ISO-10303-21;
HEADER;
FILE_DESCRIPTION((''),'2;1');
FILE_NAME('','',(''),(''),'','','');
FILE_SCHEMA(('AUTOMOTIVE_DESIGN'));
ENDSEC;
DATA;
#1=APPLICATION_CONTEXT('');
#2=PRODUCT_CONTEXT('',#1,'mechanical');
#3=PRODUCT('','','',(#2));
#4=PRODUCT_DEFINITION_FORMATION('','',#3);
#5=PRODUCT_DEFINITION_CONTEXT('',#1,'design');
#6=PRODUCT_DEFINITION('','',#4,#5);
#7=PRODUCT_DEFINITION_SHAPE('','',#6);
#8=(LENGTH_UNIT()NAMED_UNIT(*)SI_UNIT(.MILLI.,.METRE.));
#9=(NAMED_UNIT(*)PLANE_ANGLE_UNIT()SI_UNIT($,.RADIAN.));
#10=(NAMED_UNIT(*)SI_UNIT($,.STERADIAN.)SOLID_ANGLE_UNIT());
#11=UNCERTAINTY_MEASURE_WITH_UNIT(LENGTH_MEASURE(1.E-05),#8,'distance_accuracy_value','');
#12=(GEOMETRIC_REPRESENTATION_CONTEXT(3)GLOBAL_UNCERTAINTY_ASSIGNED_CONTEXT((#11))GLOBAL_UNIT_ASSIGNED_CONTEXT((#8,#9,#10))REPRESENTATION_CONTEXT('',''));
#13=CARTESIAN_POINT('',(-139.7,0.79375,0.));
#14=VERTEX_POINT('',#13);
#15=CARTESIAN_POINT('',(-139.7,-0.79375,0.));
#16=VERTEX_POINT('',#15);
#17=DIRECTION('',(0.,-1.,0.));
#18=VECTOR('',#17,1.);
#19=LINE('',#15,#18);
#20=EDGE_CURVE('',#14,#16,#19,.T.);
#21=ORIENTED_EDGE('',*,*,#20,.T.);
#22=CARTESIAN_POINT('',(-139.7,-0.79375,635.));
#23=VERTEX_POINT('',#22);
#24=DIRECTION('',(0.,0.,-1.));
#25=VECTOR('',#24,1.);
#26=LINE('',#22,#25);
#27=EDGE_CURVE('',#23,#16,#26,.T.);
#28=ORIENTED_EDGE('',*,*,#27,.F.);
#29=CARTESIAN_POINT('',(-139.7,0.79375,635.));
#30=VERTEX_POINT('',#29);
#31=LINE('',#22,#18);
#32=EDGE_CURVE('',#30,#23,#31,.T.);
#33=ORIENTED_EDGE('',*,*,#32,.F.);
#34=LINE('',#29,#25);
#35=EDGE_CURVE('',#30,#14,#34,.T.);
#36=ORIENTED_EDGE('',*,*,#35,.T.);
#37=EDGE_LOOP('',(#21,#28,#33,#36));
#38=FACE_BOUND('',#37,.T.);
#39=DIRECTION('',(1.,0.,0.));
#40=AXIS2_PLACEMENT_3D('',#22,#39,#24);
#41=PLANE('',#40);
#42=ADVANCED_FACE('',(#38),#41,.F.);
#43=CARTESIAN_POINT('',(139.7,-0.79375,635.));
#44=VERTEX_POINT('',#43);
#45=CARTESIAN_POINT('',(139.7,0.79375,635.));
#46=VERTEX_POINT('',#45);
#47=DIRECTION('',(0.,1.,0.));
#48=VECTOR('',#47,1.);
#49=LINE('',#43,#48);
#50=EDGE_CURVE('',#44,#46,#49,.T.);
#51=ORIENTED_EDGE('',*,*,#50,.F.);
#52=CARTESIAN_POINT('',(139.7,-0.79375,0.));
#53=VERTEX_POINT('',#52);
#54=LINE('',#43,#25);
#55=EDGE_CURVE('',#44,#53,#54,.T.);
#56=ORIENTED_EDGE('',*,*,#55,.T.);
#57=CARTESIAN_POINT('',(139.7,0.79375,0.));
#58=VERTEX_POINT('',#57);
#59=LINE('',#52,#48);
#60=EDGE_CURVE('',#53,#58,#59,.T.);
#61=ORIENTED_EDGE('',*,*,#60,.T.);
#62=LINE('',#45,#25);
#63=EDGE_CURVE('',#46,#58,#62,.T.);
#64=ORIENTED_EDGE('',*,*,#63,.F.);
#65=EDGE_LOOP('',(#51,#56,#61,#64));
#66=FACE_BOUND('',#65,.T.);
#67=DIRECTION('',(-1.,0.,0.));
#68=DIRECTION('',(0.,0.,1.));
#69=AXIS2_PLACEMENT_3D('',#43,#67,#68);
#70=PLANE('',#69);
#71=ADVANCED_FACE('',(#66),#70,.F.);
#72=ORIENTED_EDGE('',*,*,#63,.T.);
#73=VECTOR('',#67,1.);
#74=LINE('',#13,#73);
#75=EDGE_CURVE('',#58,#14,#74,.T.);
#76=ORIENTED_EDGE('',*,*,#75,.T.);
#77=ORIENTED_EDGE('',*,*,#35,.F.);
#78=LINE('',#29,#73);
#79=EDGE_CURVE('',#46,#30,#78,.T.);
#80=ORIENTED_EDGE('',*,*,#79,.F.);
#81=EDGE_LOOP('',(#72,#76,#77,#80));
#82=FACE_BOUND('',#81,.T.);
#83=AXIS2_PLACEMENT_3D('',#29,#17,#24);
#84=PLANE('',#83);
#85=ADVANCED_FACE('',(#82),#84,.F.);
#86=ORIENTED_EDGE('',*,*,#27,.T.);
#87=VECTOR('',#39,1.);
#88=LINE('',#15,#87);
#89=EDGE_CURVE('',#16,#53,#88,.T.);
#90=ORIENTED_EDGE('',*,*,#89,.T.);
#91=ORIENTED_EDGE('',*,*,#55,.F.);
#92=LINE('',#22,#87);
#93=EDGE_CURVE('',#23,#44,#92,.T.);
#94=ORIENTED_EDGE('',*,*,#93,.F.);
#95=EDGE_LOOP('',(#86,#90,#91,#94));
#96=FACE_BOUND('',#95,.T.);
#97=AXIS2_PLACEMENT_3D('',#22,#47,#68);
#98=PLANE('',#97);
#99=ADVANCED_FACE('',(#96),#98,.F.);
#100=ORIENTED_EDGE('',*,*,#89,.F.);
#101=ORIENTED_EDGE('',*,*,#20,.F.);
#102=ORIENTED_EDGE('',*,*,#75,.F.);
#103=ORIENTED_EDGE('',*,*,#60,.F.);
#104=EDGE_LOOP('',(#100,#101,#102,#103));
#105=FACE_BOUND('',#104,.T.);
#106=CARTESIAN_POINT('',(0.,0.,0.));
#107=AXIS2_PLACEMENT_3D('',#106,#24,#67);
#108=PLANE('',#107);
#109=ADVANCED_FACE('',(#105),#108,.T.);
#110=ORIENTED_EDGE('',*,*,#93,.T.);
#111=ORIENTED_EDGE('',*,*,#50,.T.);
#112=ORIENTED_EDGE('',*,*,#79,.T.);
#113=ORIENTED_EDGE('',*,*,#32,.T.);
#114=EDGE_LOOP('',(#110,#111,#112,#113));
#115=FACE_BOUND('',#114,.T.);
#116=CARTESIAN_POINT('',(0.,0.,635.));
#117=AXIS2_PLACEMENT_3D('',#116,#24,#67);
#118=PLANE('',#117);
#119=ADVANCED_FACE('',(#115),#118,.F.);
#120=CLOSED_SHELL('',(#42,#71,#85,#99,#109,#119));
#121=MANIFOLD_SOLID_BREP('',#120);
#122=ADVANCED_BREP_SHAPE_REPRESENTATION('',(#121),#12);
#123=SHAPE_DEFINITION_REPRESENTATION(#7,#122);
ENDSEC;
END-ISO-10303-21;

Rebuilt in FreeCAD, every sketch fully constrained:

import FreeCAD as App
import Part
import Sketcher

V = App.Vector
Q = App.Units.Quantity

doc = App.newDocument("Part")
params = doc.addObject("Spreadsheet::Sheet", "Params")
for row, (alias, value) in enumerate([
    ("sketch1_width", "11 in"),
    ("sketch1_height", "0.0625 in"),
    ("pad1_length", "25 in"),
], start=1):
    params.set(f"A{row}", alias)
    params.set(f"B{row}", "=" + value)
    params.setAlias(f"B{row}", alias)

body = doc.addObject("PartDesign::Body", "Body")

sketch1 = body.newObject("Sketcher::SketchObject", "Sketch")
sketch1.AttachmentSupport = (doc.getObject("XY_Plane"), [""])
sketch1.MapMode = "FlatFace"
sketch1.addGeometry(Part.LineSegment(V(-139.7, 0.8, 0), V(-139.7, -0.8, 0)), False)
sketch1.addGeometry(Part.LineSegment(V(-139.7, -0.8, 0), V(139.7, -0.8, 0)), False)
sketch1.addGeometry(Part.LineSegment(V(139.7, -0.8, 0), V(139.7, 0.8, 0)), False)
sketch1.addGeometry(Part.LineSegment(V(139.7, 0.8, 0), V(-139.7, 0.8, 0)), False)
sketch1.addConstraint(Sketcher.Constraint("Coincident", 0, 2, 1, 1))
sketch1.addConstraint(Sketcher.Constraint("Coincident", 1, 2, 2, 1))
sketch1.addConstraint(Sketcher.Constraint("Coincident", 2, 2, 3, 1))
sketch1.addConstraint(Sketcher.Constraint("Coincident", 3, 2, 0, 1))
sketch1.addConstraint(Sketcher.Constraint("Vertical", 0))
sketch1.addConstraint(Sketcher.Constraint("Horizontal", 1))
sketch1.addConstraint(Sketcher.Constraint("Vertical", 2))
sketch1.addConstraint(Sketcher.Constraint("Horizontal", 3))
sketch1.addConstraint(Sketcher.Constraint("Symmetric", 0, 2, 2, 2, -1, 1))
sketch1.addConstraint(Sketcher.Constraint("DistanceX", 1, 1, 1, 2, Q("11 in")))
sketch1.addConstraint(Sketcher.Constraint("DistanceY", 0, 2, 0, 1, Q("0.0625 in")))
sketch1.setExpression("Constraints[9]", "Params.sketch1_width")
sketch1.setExpression("Constraints[10]", "Params.sketch1_height")
pad1 = body.newObject("PartDesign::Pad", "Pad")
pad1.Profile = sketch1
pad1.setExpression("Length", "Params.pad1_length")

doc.recompute()
